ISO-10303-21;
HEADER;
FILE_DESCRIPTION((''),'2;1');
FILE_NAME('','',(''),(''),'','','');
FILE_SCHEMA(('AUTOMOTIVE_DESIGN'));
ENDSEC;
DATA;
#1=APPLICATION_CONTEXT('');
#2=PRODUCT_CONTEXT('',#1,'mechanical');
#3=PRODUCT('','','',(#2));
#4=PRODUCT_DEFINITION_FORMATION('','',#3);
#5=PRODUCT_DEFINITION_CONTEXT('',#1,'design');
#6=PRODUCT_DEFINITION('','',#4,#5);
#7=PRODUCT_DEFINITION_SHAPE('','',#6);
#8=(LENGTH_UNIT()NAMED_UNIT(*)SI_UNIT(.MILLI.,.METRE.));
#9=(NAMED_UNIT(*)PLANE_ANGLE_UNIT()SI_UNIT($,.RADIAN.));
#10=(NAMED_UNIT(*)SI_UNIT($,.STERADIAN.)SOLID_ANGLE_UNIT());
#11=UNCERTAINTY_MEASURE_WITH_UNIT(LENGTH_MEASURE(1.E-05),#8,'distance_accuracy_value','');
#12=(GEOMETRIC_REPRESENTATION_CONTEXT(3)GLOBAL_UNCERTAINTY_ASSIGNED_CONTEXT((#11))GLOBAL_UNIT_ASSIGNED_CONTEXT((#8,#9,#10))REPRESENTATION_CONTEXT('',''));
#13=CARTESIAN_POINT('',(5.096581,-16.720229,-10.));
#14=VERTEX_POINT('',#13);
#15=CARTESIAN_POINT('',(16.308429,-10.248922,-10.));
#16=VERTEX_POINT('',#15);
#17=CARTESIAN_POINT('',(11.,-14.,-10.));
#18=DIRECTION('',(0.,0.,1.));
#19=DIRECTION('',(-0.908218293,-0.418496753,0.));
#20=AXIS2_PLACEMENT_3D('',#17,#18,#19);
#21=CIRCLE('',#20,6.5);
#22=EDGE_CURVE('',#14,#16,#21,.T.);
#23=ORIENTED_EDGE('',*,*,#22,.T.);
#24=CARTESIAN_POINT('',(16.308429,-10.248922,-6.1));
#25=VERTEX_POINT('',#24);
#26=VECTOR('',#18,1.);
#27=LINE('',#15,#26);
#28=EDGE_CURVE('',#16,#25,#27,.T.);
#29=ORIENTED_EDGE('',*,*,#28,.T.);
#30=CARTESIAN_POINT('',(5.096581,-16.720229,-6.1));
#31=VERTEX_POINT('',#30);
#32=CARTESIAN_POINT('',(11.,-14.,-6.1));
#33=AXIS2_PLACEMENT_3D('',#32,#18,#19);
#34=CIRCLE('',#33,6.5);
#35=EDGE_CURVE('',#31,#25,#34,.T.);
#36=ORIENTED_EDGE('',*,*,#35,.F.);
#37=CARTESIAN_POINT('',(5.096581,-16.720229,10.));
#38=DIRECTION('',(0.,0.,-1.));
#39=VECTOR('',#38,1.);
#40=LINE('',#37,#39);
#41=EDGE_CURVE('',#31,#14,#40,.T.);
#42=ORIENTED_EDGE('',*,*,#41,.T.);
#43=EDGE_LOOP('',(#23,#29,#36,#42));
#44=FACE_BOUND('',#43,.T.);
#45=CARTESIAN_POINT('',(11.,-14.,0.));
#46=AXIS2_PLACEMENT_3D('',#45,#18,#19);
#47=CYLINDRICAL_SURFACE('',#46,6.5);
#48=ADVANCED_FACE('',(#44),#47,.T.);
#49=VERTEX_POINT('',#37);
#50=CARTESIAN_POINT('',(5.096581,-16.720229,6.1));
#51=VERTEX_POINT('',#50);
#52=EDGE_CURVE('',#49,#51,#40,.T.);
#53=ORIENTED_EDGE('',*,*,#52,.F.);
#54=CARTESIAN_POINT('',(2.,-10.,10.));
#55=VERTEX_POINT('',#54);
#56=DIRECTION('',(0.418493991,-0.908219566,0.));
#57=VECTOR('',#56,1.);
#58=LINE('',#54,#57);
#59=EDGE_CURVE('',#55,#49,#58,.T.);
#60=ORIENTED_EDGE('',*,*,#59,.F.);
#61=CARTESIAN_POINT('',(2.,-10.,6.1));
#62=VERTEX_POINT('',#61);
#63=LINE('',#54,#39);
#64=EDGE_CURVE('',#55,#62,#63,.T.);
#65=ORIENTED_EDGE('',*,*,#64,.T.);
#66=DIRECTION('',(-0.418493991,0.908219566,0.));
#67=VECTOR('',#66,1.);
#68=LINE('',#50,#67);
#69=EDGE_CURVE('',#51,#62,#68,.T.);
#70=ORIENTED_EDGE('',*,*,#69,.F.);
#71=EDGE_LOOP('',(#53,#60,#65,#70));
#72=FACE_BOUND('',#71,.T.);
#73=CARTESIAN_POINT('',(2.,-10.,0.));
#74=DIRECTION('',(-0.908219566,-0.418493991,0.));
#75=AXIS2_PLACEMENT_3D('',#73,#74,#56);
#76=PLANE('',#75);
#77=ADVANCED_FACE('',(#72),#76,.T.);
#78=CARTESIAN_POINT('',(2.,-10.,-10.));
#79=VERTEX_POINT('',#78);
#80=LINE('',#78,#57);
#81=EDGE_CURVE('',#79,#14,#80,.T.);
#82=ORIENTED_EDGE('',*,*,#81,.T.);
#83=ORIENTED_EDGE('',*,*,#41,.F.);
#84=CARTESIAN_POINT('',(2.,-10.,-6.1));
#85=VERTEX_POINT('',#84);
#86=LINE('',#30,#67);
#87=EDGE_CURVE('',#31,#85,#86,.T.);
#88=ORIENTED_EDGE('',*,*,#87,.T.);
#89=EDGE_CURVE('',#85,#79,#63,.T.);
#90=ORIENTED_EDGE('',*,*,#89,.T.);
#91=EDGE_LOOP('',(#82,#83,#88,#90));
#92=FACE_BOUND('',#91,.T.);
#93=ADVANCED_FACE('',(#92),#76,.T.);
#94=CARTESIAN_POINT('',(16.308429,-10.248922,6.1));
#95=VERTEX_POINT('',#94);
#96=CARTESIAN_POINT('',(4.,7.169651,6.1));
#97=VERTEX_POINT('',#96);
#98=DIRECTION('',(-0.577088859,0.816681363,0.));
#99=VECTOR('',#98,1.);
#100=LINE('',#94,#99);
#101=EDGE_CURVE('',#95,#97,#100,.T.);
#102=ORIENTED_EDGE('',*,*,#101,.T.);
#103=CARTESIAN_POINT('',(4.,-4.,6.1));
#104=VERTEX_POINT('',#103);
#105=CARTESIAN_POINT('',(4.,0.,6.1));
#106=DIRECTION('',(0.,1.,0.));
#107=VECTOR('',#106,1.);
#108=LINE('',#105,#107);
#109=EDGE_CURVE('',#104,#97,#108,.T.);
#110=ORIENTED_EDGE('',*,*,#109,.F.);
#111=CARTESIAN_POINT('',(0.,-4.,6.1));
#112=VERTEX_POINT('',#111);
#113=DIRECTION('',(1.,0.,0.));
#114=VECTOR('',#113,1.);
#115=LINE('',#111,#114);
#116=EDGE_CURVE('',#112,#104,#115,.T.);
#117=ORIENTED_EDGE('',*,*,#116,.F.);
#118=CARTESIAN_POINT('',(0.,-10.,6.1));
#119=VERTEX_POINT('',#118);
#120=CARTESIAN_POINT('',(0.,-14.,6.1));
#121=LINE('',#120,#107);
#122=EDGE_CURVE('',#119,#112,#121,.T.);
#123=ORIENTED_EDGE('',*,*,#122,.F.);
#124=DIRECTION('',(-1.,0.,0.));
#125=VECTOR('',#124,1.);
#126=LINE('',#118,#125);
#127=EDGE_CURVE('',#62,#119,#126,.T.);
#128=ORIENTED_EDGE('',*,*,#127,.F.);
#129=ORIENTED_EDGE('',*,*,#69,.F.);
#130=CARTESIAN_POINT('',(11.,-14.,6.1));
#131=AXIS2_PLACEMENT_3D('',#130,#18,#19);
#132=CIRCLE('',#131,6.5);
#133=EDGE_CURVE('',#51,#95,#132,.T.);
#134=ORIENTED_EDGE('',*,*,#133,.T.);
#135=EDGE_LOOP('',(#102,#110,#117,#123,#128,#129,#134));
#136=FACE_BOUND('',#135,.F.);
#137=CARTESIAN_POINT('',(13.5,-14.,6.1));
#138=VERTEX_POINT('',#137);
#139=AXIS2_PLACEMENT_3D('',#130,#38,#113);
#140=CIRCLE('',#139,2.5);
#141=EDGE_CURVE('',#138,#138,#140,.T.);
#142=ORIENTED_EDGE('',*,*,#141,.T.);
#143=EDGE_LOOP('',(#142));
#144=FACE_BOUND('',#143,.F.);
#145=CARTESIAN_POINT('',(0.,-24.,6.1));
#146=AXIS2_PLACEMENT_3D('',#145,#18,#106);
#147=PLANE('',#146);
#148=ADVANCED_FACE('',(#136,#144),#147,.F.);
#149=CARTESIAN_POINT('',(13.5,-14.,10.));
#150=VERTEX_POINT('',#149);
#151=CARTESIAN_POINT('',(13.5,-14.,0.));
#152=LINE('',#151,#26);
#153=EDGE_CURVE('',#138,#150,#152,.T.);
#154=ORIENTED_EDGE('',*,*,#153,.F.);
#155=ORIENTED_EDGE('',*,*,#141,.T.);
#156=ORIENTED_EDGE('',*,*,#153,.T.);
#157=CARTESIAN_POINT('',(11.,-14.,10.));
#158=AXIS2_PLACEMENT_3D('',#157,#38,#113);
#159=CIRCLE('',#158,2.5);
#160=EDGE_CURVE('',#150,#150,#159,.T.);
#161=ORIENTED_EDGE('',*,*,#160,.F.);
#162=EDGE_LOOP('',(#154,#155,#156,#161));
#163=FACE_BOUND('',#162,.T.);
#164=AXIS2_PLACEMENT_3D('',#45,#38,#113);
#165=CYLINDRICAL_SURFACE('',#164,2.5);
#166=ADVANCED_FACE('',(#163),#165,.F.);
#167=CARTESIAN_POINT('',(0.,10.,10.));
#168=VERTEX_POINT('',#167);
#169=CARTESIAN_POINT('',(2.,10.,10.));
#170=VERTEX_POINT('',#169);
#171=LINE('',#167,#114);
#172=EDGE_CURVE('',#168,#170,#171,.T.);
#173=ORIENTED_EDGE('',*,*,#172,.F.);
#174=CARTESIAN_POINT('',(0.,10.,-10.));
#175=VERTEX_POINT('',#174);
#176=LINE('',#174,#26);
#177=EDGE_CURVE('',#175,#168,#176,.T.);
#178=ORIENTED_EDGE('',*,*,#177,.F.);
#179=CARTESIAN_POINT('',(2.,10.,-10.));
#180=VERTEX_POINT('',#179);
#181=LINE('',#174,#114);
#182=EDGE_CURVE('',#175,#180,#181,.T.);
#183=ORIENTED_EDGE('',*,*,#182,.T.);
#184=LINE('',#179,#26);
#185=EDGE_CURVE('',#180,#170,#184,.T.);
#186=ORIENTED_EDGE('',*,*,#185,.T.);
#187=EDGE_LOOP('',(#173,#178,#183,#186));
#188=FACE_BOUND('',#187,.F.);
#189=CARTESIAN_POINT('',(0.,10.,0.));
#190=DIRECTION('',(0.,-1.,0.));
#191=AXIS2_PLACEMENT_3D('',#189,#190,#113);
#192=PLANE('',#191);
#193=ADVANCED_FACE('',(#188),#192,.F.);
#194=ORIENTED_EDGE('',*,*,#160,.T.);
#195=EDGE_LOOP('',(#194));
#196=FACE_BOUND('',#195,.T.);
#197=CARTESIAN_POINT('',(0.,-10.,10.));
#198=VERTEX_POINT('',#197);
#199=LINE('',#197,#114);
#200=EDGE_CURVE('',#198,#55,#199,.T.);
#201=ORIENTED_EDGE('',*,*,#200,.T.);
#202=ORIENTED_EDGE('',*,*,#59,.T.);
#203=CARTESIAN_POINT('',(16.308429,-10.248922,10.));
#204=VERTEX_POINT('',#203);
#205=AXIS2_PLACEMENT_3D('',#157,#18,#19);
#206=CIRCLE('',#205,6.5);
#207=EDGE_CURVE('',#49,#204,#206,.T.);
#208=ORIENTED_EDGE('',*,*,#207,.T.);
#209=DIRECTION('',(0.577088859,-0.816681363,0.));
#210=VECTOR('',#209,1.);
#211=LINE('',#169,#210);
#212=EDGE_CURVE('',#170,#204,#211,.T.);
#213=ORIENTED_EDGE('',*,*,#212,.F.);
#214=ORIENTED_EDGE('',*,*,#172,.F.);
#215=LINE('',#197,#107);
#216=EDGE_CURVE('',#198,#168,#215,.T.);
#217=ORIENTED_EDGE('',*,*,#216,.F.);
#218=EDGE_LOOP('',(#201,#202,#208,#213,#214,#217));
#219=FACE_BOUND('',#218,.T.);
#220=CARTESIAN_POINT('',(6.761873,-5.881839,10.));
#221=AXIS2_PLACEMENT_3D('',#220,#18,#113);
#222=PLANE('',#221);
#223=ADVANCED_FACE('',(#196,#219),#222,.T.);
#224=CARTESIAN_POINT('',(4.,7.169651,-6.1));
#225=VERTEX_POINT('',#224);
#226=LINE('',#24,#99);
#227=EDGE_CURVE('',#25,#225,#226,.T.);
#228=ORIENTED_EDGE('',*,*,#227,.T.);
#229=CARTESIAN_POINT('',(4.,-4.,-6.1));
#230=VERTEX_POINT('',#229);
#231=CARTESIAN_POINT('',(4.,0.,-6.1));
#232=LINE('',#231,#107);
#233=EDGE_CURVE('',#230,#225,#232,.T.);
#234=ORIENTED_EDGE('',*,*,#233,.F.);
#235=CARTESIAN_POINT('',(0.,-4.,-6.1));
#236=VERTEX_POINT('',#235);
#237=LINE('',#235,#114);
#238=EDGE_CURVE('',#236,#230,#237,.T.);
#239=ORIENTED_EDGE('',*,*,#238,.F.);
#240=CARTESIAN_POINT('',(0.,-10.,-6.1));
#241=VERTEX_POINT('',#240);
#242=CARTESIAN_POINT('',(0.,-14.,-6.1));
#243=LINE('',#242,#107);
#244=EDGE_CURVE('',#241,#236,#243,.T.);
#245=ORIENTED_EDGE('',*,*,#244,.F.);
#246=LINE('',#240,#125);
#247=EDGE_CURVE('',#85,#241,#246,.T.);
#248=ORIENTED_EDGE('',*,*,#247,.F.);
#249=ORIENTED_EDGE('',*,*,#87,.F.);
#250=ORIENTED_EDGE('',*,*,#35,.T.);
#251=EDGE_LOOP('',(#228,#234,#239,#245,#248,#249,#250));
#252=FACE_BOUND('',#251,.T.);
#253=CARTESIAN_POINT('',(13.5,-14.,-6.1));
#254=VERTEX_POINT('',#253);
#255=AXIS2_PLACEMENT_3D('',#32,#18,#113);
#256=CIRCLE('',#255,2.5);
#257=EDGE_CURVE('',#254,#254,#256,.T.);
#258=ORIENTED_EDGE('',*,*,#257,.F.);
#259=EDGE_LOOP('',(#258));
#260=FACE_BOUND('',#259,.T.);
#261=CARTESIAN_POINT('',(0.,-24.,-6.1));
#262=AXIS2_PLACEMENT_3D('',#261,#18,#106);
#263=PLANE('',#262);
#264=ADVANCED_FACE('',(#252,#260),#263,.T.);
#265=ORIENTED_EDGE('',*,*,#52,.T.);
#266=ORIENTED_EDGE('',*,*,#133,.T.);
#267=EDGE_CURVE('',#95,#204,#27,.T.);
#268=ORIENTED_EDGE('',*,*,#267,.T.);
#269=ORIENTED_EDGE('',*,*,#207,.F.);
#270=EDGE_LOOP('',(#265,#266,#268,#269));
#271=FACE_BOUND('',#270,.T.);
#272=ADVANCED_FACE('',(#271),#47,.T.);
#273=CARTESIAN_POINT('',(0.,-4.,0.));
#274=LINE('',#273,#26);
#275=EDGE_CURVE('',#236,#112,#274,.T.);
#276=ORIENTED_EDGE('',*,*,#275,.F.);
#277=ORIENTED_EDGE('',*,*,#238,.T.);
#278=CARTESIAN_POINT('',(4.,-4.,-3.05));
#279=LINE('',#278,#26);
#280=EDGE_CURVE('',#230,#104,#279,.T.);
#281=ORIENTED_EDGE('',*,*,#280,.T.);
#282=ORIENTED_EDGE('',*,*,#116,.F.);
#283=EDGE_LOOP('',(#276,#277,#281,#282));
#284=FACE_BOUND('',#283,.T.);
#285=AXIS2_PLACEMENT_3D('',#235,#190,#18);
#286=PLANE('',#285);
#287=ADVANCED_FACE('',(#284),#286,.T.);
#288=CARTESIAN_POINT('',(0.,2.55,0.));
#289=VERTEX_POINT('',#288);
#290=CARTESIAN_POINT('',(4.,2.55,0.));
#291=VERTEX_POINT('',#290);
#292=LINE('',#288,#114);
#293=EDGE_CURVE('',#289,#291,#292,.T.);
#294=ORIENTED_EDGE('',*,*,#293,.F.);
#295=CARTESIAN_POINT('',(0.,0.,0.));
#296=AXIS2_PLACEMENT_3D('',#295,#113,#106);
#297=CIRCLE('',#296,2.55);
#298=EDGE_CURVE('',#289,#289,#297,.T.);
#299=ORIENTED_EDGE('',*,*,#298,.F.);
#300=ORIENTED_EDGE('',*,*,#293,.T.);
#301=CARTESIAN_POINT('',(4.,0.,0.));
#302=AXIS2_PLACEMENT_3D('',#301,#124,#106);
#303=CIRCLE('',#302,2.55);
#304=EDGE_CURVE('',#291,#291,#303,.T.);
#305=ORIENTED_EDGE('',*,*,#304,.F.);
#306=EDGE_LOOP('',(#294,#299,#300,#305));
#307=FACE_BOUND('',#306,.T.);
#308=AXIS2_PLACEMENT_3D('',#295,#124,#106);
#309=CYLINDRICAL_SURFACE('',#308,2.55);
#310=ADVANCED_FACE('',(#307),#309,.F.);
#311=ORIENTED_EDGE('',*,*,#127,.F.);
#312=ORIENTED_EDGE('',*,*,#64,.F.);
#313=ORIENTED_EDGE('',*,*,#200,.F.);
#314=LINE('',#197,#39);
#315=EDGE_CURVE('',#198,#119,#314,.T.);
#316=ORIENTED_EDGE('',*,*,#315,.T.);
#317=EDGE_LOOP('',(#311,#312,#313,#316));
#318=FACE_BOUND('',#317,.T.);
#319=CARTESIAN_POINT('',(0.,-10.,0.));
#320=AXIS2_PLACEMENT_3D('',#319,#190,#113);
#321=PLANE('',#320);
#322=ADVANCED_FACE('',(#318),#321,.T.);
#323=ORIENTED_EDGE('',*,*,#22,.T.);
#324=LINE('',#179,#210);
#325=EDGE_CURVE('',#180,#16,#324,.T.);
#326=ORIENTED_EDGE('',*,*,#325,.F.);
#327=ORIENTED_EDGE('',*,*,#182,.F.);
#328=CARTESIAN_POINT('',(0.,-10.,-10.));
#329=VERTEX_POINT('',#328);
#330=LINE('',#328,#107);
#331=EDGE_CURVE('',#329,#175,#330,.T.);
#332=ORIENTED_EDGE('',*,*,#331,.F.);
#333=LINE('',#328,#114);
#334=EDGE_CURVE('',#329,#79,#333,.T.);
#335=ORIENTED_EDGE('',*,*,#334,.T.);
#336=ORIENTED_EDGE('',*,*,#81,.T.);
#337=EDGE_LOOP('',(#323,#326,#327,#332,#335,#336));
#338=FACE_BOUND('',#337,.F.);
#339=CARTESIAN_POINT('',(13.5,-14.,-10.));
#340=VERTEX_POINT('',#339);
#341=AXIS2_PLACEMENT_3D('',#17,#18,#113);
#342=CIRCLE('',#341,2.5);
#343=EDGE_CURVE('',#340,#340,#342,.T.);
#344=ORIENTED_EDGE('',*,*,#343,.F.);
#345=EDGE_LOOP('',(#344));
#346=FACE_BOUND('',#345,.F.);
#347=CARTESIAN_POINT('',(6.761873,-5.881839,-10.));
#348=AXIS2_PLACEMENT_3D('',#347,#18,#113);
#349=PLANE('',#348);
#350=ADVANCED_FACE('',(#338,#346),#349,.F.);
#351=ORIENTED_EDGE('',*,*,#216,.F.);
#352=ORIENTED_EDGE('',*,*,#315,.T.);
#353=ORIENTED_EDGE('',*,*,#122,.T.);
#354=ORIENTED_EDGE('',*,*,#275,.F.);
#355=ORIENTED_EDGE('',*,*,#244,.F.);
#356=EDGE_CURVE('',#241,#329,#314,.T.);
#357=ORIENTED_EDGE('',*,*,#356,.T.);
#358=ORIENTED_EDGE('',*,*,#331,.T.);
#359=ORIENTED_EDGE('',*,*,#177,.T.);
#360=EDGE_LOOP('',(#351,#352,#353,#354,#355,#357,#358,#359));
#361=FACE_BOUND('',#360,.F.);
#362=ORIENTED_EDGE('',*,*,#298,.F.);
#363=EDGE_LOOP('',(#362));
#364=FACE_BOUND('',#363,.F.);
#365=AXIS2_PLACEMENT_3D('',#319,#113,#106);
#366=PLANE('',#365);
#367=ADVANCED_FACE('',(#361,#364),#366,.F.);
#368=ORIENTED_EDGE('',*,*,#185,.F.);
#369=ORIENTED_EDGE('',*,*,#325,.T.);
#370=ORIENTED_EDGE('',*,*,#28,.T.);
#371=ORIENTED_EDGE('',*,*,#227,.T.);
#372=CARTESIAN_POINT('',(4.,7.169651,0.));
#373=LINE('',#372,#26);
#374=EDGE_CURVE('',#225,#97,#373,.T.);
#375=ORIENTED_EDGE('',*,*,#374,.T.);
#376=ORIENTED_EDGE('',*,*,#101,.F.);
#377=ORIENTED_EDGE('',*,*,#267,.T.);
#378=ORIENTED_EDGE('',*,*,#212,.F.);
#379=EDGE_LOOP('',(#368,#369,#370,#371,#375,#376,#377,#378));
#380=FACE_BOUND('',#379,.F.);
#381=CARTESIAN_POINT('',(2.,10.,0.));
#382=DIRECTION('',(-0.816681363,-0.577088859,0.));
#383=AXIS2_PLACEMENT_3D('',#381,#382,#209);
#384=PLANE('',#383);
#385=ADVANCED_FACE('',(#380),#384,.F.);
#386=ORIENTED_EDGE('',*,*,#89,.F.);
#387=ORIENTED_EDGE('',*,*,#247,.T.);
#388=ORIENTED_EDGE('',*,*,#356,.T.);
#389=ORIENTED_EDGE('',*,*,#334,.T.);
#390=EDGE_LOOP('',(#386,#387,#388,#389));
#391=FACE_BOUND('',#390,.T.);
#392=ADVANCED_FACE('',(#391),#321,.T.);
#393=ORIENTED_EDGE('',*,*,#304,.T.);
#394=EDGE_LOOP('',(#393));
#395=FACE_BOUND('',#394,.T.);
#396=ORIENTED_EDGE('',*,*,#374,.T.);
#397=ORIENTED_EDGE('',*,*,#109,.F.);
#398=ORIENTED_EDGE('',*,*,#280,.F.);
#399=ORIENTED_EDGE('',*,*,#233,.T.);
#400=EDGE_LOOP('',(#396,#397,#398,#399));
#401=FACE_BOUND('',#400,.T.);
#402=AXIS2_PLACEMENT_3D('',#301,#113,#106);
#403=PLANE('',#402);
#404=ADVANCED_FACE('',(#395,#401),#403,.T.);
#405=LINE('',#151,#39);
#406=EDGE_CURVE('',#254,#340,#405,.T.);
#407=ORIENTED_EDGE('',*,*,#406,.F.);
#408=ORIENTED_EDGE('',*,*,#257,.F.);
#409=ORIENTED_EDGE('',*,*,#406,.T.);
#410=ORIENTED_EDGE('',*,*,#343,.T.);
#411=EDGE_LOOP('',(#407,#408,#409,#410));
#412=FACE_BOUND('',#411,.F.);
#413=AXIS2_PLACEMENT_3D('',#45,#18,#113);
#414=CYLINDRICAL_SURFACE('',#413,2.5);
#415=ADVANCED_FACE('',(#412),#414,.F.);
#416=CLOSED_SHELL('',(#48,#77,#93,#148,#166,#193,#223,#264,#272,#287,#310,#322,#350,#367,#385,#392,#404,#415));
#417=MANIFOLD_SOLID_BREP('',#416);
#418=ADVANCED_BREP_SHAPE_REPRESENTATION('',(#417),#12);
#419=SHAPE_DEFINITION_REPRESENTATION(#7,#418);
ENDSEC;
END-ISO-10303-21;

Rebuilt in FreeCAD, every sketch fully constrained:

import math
import FreeCAD as App
import Part
import Sketcher
Q = App.Units.Quantity

doc = App.newDocument("Part")
body = doc.addObject("PartDesign::Body", "Body")

# Sketch on XY plane
sketch1 = body.newObject("Sketcher::SketchObject", "Sketch")
sketch1.AttachmentSupport = (doc.getObject("XY_Plane"), [""])
sketch1.MapMode = "FlatFace"
sketch1.addGeometry([
    Part.ArcOfCircle(Part.Circle(App.Vector(11, -14, 0), App.Vector(0, 0, 1), 6.5), math.radians(-155.260282), math.radians(35.246051)),  # 0
    Part.LineSegment(App.Vector(16.308429, -10.248922, 0), App.Vector(2, 10, 0)),  # 1
    Part.LineSegment(App.Vector(2, 10, 0), App.Vector(0, 10, 0)),  # 2
    Part.LineSegment(App.Vector(0, 10, 0), App.Vector(0, -10, 0)),  # 3
    Part.LineSegment(App.Vector(0, -10, 0), App.Vector(2, -10, 0)),  # 4
    Part.LineSegment(App.Vector(2, -10, 0), App.Vector(5.096581, -16.720229, 0)),  # 5
], False)
sketch1.addConstraint([
    Sketcher.Constraint("Tangent", 0, 2, 1, 1),
    Sketcher.Constraint("Coincident", 1, 2, 2, 1),
    Sketcher.Constraint("Coincident", 2, 2, 3, 1),
    Sketcher.Constraint("Coincident", 3, 2, 4, 1),
    Sketcher.Constraint("Coincident", 4, 2, 5, 1),
    Sketcher.Constraint("Coincident", 5, 2, 0, 1),
    Sketcher.Constraint("Horizontal", 2),
    Sketcher.Constraint("Vertical", 3),
    Sketcher.Constraint("Horizontal", 4),
    Sketcher.Constraint("Symmetric", 2, 2, 3, 2, -1, 1),
    Sketcher.Constraint("Vertical", 1, 2, 4, 2),
    Sketcher.Constraint("Radius", 0, Q("6.5 mm")),
    Sketcher.Constraint("DistanceX", 2, 2, 2, 1, Q("2 mm")),
    Sketcher.Constraint("DistanceY", 3, 2, 3, 1, Q("20 mm")),
    Sketcher.Constraint("DistanceX", -1, 1, 0, 3, Q("11 mm")),
    Sketcher.Constraint("DistanceY", 0, 3, -1, 1, Q("14 mm")),
    Sketcher.Constraint("DistanceX", -1, 1, 5, 2, Q("5.096581 mm")),
])
pad1 = body.newObject("PartDesign::Pad", "Pad")
pad1.Profile = sketch1
pad1.Length = 20
pad1.Midplane = True

# Sketch on YZ plane
sketch2 = body.newObject("Sketcher::SketchObject", "Sketch001")
sketch2.AttachmentSupport = (doc.getObject("YZ_Plane"), [""])
sketch2.MapMode = "FlatFace"
sketch2.addGeometry([
    Part.Circle(App.Vector(0, 0, 0), App.Vector(0, 0, 1), 2.55),  # 0
    Part.LineSegment(App.Vector(-24, 6.1, 0), App.Vector(-24, -6.1, 0)),  # 1
    Part.LineSegment(App.Vector(-24, -6.1, 0), App.Vector(-4, -6.1, 0)),  # 2
    Part.LineSegment(App.Vector(-4, -6.1, 0), App.Vector(-4, 6.1, 0)),  # 3
    Part.LineSegment(App.Vector(-4, 6.1, 0), App.Vector(-24, 6.1, 0)),  # 4
], False)
sketch2.addConstraint([
    Sketcher.Constraint("Coincident", 1, 2, 2, 1),
    Sketcher.Constraint("Coincident", 2, 2, 3, 1),
    Sketcher.Constraint("Coincident", 3, 2, 4, 1),
    Sketcher.Constraint("Coincident", 4, 2, 1, 1),
    Sketcher.Constraint("Vertical", 1),
    Sketcher.Constraint("Horizontal", 2),
    Sketcher.Constraint("Vertical", 3),
    Sketcher.Constraint("Horizontal", 4),
    Sketcher.Constraint("Coincident", 0, 3, -1, 1),
    Sketcher.Constraint("Diameter", 0, Q("5.1 mm")),
    Sketcher.Constraint("DistanceX", 2, 1, 2, 2, Q("20 mm")),
    Sketcher.Constraint("DistanceY", 1, 2, 1, 1, Q("12.2 mm")),
    Sketcher.Constraint("DistanceX", 1, 2, -1, 1, Q("24 mm")),
    Sketcher.Constraint("DistanceY", 1, 2, -1, 1, Q("6.1 mm")),
])
pocket1 = body.newObject("PartDesign::Pocket", "Pocket")
pocket1.Profile = sketch2
pocket1.Type = "ThroughAll"
pocket1.Midplane = True

# Sketch on YZ plane
sketch3 = body.newObject("Sketcher::SketchObject", "Sketch002")
sketch3.AttachmentSupport = (doc.getObject("YZ_Plane"), [""])
sketch3.MapMode = "FlatFace"
sketch3.AttachmentOffset = App.Placement(App.Vector(0, 0, 4), App.Rotation())
sketch3.addGeometry([
    Part.LineSegment(App.Vector(-25, 6.1, 0), App.Vector(-25, -6.1, 0)),
    Part.LineSegment(App.Vector(-25, -6.1, 0), App.Vector(25, -6.1, 0)),
    Part.LineSegment(App.Vector(25, -6.1, 0), App.Vector(25, 6.1, 0)),
    Part.LineSegment(App.Vector(25, 6.1, 0), App.Vector(-25, 6.1, 0)),
], False)
sketch3.addConstraint([
    Sketcher.Constraint("Coincident", 0, 2, 1, 1),
    Sketcher.Constraint("Coincident", 1, 2, 2, 1),
    Sketcher.Constraint("Coincident", 2, 2, 3, 1),
    Sketcher.Constraint("Coincident", 3, 2, 0, 1),
    Sketcher.Constraint("Vertical", 0),
    Sketcher.Constraint("Horizontal", 1),
    Sketcher.Constraint("Vertical", 2),
    Sketcher.Constraint("Horizontal", 3),
    Sketcher.Constraint("Symmetric", 0, 2, 2, 2, -1, 1),
    Sketcher.Constraint("DistanceX", 1, 1, 1, 2, Q("50 mm")),
    Sketcher.Constraint("DistanceY", 0, 2, 0, 1, Q("12.2 mm")),
])
pocket2 = body.newObject("PartDesign::Pocket", "Pocket001")
pocket2.Profile = sketch3
pocket2.Type = "ThroughAll"
pocket2.Reversed = True

# Sketch on XY plane
sketch4 = body.newObject("Sketcher::SketchObject", "Sketch003")
sketch4.AttachmentSupport = (doc.getObject("XY_Plane"), [""])
sketch4.MapMode = "FlatFace"
sketch4.addGeometry(Part.Circle(App.Vector(11, -14, 0), App.Vector(0, 0, 1), 2.5), False)
sketch4.addConstraint([
    Sketcher.Constraint("Diameter", 0, Q("5 mm")),
    Sketcher.Constraint("DistanceX", -1, 1, 0, 3, Q("11 mm")),
    Sketcher.Constraint("DistanceY", 0, 3, -1, 1, Q("14 mm")),
])
pocket3 = body.newObject("PartDesign::Pocket", "Pocket002")
pocket3.Profile = sketch4
pocket3.Type = "ThroughAll"
pocket3.Midplane = True

doc.recompute()
